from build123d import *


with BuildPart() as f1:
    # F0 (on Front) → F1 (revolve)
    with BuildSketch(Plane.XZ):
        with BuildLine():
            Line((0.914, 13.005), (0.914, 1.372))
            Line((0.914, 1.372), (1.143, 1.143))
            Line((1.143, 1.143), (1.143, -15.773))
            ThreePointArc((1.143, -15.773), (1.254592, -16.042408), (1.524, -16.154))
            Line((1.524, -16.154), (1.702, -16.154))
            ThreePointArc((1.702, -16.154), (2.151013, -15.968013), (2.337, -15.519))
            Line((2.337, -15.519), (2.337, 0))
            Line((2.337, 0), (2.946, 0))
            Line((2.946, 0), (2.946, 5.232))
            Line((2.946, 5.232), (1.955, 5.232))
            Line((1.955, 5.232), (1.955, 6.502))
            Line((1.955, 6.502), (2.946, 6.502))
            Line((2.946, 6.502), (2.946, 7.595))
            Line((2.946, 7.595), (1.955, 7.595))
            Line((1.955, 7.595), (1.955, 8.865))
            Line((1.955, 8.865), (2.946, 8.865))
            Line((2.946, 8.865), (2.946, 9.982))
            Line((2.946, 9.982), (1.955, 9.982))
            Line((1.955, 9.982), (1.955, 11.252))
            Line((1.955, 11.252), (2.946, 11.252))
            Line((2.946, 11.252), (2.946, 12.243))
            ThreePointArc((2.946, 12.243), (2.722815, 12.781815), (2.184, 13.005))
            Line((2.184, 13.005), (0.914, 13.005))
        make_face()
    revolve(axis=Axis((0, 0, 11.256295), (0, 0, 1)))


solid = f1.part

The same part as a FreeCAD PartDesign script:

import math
import FreeCAD as App
import Part
import Sketcher
Q = App.Units.Quantity

doc = App.newDocument("Part")
body = doc.addObject("PartDesign::Body", "Body")

# Sketch on XZ plane
sketch1 = body.newObject("Sketcher::SketchObject", "Sketch")
sketch1.AttachmentSupport = (doc.getObject("XZ_Plane"), [""])
sketch1.MapMode = "FlatFace"
sketch1.addGeometry([
    Part.LineSegment(App.Vector(0.91, 13.01, 0), App.Vector(0.91, 1.37, 0)),  # 0
    Part.LineSegment(App.Vector(0.91, 1.37, 0), App.Vector(1.14, 1.14, 0)),  # 1
    Part.LineSegment(App.Vector(1.14, 1.14, 0), App.Vector(1.14, -15.77, 0)),  # 2
    Part.ArcOfCircle(Part.Circle(App.Vector(1.52, -15.77, 0), App.Vector(0, 0, 1), 0.38), math.radians(180), math.radians(270)),  # 3
    Part.LineSegment(App.Vector(1.52, -16.15, 0), App.Vector(1.7, -16.15, 0)),  # 4
    Part.ArcOfCircle(Part.Circle(App.Vector(1.7, -15.52, 0), App.Vector(0, 0, 1), 0.63), math.radians(-90), math.radians(0)),  # 5
    Part.LineSegment(App.Vector(2.34, -15.52, 0), App.Vector(2.34, 0, 0)),  # 6
    Part.LineSegment(App.Vector(2.34, 0, 0), App.Vector(2.95, 0, 0)),  # 7
    Part.LineSegment(App.Vector(2.95, 0, 0), App.Vector(2.95, 5.23, 0)),  # 8
    Part.LineSegment(App.Vector(2.95, 5.23, 0), App.Vector(1.96, 5.23, 0)),  # 9
    Part.LineSegment(App.Vector(1.96, 5.23, 0), App.Vector(1.96, 6.5, 0)),  # 10
    Part.LineSegment(App.Vector(1.96, 6.5, 0), App.Vector(2.95, 6.5, 0)),  # 11
    Part.LineSegment(App.Vector(2.95, 6.5, 0), App.Vector(2.95, 7.59, 0)),  # 12
    Part.LineSegment(App.Vector(2.95, 7.59, 0), App.Vector(1.96, 7.59, 0)),  # 13
    Part.LineSegment(App.Vector(1.96, 7.59, 0), App.Vector(1.96, 8.87, 0)),  # 14
    Part.LineSegment(App.Vector(1.96, 8.87, 0), App.Vector(2.95, 8.87, 0)),  # 15
    Part.LineSegment(App.Vector(2.95, 8.87, 0), App.Vector(2.95, 9.98, 0)),  # 16
    Part.LineSegment(App.Vector(2.95, 9.98, 0), App.Vector(1.96, 9.98, 0)),  # 17
    Part.LineSegment(App.Vector(1.96, 9.98, 0), App.Vector(1.96, 11.25, 0)),  # 18
    Part.LineSegment(App.Vector(1.96, 11.25, 0), App.Vector(2.95, 11.25, 0)),  # 19
    Part.LineSegment(App.Vector(2.95, 11.25, 0), App.Vector(2.95, 12.24, 0)),  # 20
    Part.ArcOfCircle(Part.Circle(App.Vector(2.18, 12.24, 0), App.Vector(0, 0, 1), 0.76), math.radians(0), math.radians(90)),  # 21
    Part.LineSegment(App.Vector(2.18, 13.01, 0), App.Vector(0.91, 13.01, 0)),  # 22
], False)
sketch1.addConstraint([
    Sketcher.Constraint("Coincident", 0, 2, 1, 1),
    Sketcher.Constraint("Coincident", 1, 2, 2, 1),
    Sketcher.Constraint("Coincident", 2, 2, 3, 1),
    Sketcher.Constraint("Coincident", 3, 2, 4, 1),
    Sketcher.Constraint("Tangent", 4, 2, 5, 1),
    Sketcher.Constraint("Tangent", 5, 2, 6, 1),
    Sketcher.Constraint("Coincident", 6, 2, 7, 1),
    Sketcher.Constraint("Coincident", 7, 2, 8, 1),
    Sketcher.Constraint("Coincident", 8, 2, 9, 1),
    Sketcher.Constraint("Coincident", 9, 2, 10, 1),
    Sketcher.Constraint("Coincident", 10, 2, 11, 1),
    Sketcher.Constraint("Coincident", 11, 2, 12, 1),
    Sketcher.Constraint("Coincident", 12, 2, 13, 1),
    Sketcher.Constraint("Coincident", 13, 2, 14, 1),
    Sketcher.Constraint("Coincident", 14, 2, 15, 1),
    Sketcher.Constraint("Coincident", 15, 2, 16, 1),
    Sketcher.Constraint("Coincident", 16, 2, 17, 1),
    Sketcher.Constraint("Coincident", 17, 2, 18, 1),
    Sketcher.Constraint("Coincident", 18, 2, 19, 1),
    Sketcher.Constraint("Coincident", 19, 2, 20, 1),
    Sketcher.Constraint("Tangent", 20, 2, 21, 1),
    Sketcher.Constraint("Tangent", 21, 2, 22, 1),
    Sketcher.Constraint("Coincident", 22, 2, 0, 1),
    Sketcher.Constraint("Vertical", 0),
    Sketcher.Constraint("Vertical", 2),
    Sketcher.Constraint("Horizontal", 4),
    Sketcher.Constraint("Vertical", 6),
    Sketcher.Constraint("Horizontal", 7),
    Sketcher.Constraint("Vertical", 8),
    Sketcher.Constraint("Horizontal", 9),
    Sketcher.Constraint("Vertical", 10),
    Sketcher.Constraint("Horizontal", 11),
    Sketcher.Constraint("Vertical", 12),
    Sketcher.Constraint("Horizontal", 13),
    Sketcher.Constraint("Vertical", 14),
    Sketcher.Constraint("Horizontal", 15),
    Sketcher.Constraint("Vertical", 16),
    Sketcher.Constraint("Horizontal", 17),
    Sketcher.Constraint("Vertical", 18),
    Sketcher.Constraint("Horizontal", 19),
    Sketcher.Constraint("Vertical", 20),
    Sketcher.Constraint("Horizontal", 22),
    Sketcher.Constraint("PointOnObject", 6, 2, -1),
    Sketcher.Constraint("Horizontal", 3, 3, 2, 2),
    Sketcher.Constraint("Vertical", 8, 2, 11, 2),
    Sketcher.Constraint("Vertical", 10, 2, 13, 2),
    Sketcher.Constraint("Vertical", 12, 2, 15, 2),
    Sketcher.Constraint("Vertical", 14, 2, 17, 2),
    Sketcher.Constraint("Vertical", 16, 2, 19, 2),
    Sketcher.Constraint("Equal", 22, 10),
    Sketcher.Constraint("Equal", 10, 14),
    Sketcher.Constraint("Equal", 14, 18),
    Sketcher.Constraint("Equal", 19, 20),
    Sketcher.Constraint("Radius", 21, Q("0.03 in")),
    Sketcher.Constraint("Angle", 1, Q("-45 deg")),
    Sketcher.Constraint("Radius", 3, Q("0.015 in")),
    Sketcher.Constraint("Radius", 5, Q("0.025 in")),
    Sketcher.Constraint("DistanceX", 22, 2, 22, 1, Q("0.05 in")),
    Sketcher.Constraint("DistanceX", -1, 1, 3, 3, Q("0.06 in")),
    Sketcher.Constraint("DistanceX", -1, 1, 3, 2, Q("0.06 in")),
    Sketcher.Constraint("DistanceY", 3, 2, 0, 2, Q("0.69 in")),
    Sketcher.Constraint("DistanceY", -1, 1, 1, 2, Q("0.045 in")),
    Sketcher.Constraint("DistanceX", 4, 1, 4, 2, Q("0.178 mm")),
    Sketcher.Constraint("DistanceX", 7, 1, 7, 2, Q("0.609 mm")),
    Sketcher.Constraint("DistanceX", 9, 2, 9, 1, Q("0.991 mm")),
    Sketcher.Constraint("DistanceY", 0, 2, 0, 1, Q("11.633 mm")),
    Sketcher.Constraint("DistanceY", 8, 1, 8, 2, Q("5.232 mm")),
    Sketcher.Constraint("DistanceY", 12, 1, 12, 2, Q("1.093 mm")),
])
revolution = body.newObject("PartDesign::Revolution", "Revolution")
revolution.Profile = sketch1
revolution.ReferenceAxis = (sketch1, ["V_Axis"])
revolution.Angle = 360

doc.recompute()
